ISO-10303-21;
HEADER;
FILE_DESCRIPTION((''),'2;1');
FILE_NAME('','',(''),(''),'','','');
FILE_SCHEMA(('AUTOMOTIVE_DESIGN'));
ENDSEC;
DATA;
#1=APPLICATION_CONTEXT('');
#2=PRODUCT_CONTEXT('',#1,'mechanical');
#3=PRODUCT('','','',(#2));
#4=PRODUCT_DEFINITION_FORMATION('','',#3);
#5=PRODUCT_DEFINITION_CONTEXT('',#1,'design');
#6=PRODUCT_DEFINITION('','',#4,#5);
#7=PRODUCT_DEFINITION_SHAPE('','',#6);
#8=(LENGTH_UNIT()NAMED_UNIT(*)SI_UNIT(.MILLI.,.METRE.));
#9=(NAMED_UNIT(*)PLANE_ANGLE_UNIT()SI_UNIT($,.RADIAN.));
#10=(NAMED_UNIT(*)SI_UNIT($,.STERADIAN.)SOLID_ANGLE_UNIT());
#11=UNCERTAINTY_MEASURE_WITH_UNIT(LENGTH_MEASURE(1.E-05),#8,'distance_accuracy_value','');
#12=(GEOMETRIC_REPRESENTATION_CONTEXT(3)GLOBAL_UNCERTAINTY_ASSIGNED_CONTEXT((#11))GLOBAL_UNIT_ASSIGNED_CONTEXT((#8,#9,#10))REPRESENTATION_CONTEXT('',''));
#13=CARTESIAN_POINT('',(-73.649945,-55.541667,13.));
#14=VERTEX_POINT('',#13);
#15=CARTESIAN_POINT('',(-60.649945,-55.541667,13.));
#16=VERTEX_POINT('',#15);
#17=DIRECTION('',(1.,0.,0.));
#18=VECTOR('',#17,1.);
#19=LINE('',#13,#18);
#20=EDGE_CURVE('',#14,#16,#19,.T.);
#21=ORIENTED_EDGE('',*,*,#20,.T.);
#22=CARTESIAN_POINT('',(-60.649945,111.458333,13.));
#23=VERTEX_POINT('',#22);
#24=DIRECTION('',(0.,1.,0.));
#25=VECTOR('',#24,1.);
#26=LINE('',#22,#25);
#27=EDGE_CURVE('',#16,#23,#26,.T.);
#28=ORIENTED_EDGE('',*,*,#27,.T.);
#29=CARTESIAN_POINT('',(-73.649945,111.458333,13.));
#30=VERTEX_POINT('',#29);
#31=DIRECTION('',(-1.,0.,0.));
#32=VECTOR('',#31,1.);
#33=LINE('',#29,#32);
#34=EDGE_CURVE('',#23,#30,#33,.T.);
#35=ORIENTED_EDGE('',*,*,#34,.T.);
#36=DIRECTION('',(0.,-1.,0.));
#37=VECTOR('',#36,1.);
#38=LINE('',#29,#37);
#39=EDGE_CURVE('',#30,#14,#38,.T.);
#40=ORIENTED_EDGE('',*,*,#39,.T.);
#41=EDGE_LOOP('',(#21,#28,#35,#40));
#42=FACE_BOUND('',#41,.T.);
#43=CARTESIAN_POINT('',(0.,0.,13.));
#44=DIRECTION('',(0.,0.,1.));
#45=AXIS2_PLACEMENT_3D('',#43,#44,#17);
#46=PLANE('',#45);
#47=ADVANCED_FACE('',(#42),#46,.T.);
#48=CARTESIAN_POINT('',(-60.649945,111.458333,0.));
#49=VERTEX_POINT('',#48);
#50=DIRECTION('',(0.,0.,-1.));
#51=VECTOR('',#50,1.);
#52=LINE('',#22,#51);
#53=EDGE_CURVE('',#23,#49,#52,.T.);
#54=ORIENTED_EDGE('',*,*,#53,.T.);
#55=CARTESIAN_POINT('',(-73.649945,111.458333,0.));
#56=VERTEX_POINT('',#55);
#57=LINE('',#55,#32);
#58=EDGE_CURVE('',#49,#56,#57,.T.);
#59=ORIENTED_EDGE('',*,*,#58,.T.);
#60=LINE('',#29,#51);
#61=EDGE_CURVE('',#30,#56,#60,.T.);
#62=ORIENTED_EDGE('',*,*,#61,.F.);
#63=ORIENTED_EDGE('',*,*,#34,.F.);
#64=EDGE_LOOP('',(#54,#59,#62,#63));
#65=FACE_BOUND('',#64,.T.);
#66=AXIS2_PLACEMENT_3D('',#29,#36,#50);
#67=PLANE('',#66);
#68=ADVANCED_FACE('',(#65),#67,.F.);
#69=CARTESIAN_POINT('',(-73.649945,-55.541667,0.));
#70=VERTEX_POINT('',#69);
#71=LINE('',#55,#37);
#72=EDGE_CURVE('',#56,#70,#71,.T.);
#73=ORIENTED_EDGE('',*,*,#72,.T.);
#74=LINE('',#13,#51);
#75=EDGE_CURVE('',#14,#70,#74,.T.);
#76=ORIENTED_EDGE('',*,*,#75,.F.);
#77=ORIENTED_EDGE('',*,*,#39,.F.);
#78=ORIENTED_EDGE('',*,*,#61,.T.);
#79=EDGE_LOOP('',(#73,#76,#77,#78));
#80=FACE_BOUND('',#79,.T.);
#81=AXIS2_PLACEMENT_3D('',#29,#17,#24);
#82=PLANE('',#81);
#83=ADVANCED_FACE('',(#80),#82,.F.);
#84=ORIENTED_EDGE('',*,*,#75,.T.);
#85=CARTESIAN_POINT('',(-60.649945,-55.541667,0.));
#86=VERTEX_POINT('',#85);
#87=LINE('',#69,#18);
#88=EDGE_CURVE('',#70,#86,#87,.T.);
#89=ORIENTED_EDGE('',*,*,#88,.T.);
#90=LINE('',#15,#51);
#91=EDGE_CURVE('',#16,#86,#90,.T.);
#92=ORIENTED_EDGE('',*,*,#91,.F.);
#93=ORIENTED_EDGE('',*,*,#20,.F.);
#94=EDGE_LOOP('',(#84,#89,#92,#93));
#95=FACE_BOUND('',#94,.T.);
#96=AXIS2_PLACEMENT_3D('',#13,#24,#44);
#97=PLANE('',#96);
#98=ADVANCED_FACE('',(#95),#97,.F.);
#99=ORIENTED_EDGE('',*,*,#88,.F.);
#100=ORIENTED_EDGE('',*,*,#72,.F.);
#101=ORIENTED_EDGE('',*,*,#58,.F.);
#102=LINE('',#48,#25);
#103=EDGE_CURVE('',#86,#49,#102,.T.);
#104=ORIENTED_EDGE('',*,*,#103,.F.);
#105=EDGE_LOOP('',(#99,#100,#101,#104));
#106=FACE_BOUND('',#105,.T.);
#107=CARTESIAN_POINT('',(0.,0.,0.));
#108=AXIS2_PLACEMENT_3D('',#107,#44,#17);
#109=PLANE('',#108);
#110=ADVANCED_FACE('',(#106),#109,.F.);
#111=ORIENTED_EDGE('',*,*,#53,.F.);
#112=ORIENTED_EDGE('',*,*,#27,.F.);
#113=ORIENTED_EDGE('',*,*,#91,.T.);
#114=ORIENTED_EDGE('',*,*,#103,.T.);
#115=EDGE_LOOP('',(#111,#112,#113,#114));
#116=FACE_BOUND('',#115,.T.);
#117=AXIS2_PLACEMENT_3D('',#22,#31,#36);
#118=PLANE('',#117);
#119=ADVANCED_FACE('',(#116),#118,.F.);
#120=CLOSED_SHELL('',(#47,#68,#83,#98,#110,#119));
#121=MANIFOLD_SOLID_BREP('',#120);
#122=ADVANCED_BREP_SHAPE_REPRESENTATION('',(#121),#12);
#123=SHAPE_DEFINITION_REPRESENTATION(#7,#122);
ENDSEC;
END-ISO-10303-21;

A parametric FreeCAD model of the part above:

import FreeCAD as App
import Part
import Sketcher
from FreeCAD import Vector
Q = App.Units.Quantity

doc = App.newDocument("Part")
params = doc.addObject("Spreadsheet::Sheet", "Params")
for row, (alias, value) in enumerate([
    ("sketch1_width", "13 mm"),
    ("sketch1_height", "167 mm"),
    ("pad1_length", "13 mm"),
], start=1):
    params.set(f"A{row}", alias)
    params.set(f"B{row}", "=" + value)
    params.setAlias(f"B{row}", alias)

body = doc.addObject("PartDesign::Body", "Body")

sketch1 = doc.addObject("Sketcher::SketchObject", "Sketch")
body.addObject(sketch1)
sketch1.AttachmentSupport = (doc.XY_Plane, [""])
sketch1.MapMode = "FlatFace"
sketch1.addGeometry(Part.LineSegment(Vector(-74, 111, 0), Vector(-74, -56, 0)), False)
sketch1.addGeometry(Part.LineSegment(Vector(-74, -56, 0), Vector(-61, -56, 0)), False)
sketch1.addGeometry(Part.LineSegment(Vector(-61, -56, 0), Vector(-61, 111, 0)), False)
sketch1.addGeometry(Part.LineSegment(Vector(-61, 111, 0), Vector(-74, 111, 0)), False)
sketch1.addConstraint(Sketcher.Constraint("Coincident", 0, 2, 1, 1))
sketch1.addConstraint(Sketcher.Constraint("Coincident", 1, 2, 2, 1))
sketch1.addConstraint(Sketcher.Constraint("Coincident", 2, 2, 3, 1))
sketch1.addConstraint(Sketcher.Constraint("Coincident", 3, 2, 0, 1))
sketch1.addConstraint(Sketcher.Constraint("Vertical", 0))
sketch1.addConstraint(Sketcher.Constraint("Horizontal", 1))
sketch1.addConstraint(Sketcher.Constraint("Vertical", 2))
sketch1.addConstraint(Sketcher.Constraint("Horizontal", 3))
sketch1.addConstraint(Sketcher.Constraint("DistanceX", 1, 1, 1, 2, Q("13 mm")))
sketch1.addConstraint(Sketcher.Constraint("DistanceY", 0, 2, 0, 1, Q("167 mm")))
sketch1.addConstraint(Sketcher.Constraint("DistanceX", 0, 2, -1, 1, Q("73.649945 mm")))
sketch1.addConstraint(Sketcher.Constraint("DistanceY", 0, 2, -1, 1, Q("55.541667 mm")))
sketch1.setExpression("Constraints[8]", "Params.sketch1_width")
sketch1.setExpression("Constraints[9]", "Params.sketch1_height")
pad1 = doc.addObject("PartDesign::Pad", "Pad")
body.addObject(pad1)
pad1.Profile = sketch1
pad1.setExpression("Length", "Params.pad1_length")

doc.recompute()
